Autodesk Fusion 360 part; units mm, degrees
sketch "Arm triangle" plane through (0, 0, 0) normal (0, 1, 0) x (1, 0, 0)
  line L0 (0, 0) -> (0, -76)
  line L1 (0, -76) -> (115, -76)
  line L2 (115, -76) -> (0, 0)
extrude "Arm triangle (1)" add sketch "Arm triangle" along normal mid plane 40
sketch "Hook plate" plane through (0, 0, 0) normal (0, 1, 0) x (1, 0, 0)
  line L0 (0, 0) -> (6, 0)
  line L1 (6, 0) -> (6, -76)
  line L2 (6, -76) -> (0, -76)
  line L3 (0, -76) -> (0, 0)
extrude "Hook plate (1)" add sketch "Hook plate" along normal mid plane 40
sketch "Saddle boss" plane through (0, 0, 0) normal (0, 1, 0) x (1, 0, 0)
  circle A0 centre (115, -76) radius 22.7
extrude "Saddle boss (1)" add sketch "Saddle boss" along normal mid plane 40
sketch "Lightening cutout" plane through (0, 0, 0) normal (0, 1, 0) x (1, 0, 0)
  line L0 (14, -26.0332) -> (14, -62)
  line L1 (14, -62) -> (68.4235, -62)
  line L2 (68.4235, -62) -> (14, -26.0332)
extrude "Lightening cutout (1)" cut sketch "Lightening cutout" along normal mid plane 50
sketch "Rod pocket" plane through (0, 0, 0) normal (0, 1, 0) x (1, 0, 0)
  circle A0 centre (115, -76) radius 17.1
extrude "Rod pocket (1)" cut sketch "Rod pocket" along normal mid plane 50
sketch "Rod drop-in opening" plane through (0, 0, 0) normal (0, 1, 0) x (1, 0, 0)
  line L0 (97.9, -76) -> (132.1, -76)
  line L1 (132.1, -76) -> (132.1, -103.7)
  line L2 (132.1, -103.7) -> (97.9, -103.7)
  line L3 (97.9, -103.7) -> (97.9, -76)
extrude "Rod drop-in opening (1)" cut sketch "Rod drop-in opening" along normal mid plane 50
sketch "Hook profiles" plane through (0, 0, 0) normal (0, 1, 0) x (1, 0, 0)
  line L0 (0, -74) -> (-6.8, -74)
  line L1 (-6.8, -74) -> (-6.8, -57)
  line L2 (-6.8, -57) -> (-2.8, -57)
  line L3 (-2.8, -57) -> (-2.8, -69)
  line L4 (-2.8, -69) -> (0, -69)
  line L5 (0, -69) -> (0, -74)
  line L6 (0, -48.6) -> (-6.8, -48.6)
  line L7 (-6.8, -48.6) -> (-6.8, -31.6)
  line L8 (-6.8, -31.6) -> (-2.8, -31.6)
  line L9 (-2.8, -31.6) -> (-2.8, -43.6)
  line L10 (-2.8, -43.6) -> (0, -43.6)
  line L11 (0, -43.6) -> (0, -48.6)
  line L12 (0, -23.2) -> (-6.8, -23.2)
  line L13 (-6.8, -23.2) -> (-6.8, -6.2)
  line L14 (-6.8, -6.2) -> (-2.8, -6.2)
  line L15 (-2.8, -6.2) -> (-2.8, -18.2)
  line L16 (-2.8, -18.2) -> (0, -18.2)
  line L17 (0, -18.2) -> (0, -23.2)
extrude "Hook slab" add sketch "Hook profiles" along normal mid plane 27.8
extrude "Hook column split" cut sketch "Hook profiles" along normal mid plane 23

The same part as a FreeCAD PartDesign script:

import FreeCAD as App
import Part
import Sketcher

V = App.Vector
Q = App.Units.Quantity

doc = App.newDocument("Part")
params = doc.addObject("Spreadsheet::Sheet", "Params")
for row, (alias, value) in enumerate([
    ("sketch1_width", "115 mm"),
    ("sketch1_height", "76 mm"),
    ("pad1_length", "40 mm"),
    ("sketch2_width", "6 mm"),
    ("sketch2_height", "76 mm"),
    ("pad2_length", "40 mm"),
    ("sketch3_diameter", "45.4 mm"),
    ("pad3_length", "40 mm"),
    ("pocket1_length", "50 mm"),
    ("sketch5_diameter", "34.2 mm"),
    ("pocket2_length", "50 mm"),
    ("sketch6_width", "34.2 mm"),
    ("sketch6_height", "27.7 mm"),
    ("pocket3_length", "50 mm"),
    ("sketch7_width", "4 mm"),
    ("sketch7_height", "5 mm"),
    ("sketch7_height2", "12 mm"),
    ("sketch7_width2", "6.8 mm"),
    ("pad4_length", "27.8 mm"),
    ("sketch8_width", "4 mm"),
    ("sketch8_height", "5 mm"),
    ("sketch8_height2", "12 mm"),
    ("sketch8_width2", "6.8 mm"),
    ("pocket4_length", "23 mm"),
], start=1):
    params.set(f"A{row}", alias)
    params.set(f"B{row}", "=" + value)
    params.setAlias(f"B{row}", alias)

body = doc.addObject("PartDesign::Body", "Body")

sketch1 = body.newObject("Sketcher::SketchObject", "Sketch")
sketch1.AttachmentSupport = (doc.getObject("XZ_Plane"), [""])
sketch1.MapMode = "FlatFace"
sketch1.addGeometry(Part.LineSegment(V(115, 76, 0), V(0, 0, 0)), False)
sketch1.addGeometry(Part.LineSegment(V(0, 0, 0), V(0, 76, 0)), False)
sketch1.addGeometry(Part.LineSegment(V(0, 76, 0), V(115, 76, 0)), False)
sketch1.addConstraint(Sketcher.Constraint("Coincident", 0, 2, 1, 1))
sketch1.addConstraint(Sketcher.Constraint("Coincident", 1, 2, 2, 1))
sketch1.addConstraint(Sketcher.Constraint("Coincident", 2, 2, 0, 1))
sketch1.addConstraint(Sketcher.Constraint("Vertical", 1))
sketch1.addConstraint(Sketcher.Constraint("Horizontal", 2))
sketch1.addConstraint(Sketcher.Constraint("Coincident", 0, 2, -1, 1))
sketch1.addConstraint(Sketcher.Constraint("DistanceX", 2, 1, 2, 2, 115.0))
sketch1.addConstraint(Sketcher.Constraint("DistanceY", 1, 1, 1, 2, 76.0))
sketch1.setExpression("Constraints[6]", "Params.sketch1_width")
sketch1.setExpression("Constraints[7]", "Params.sketch1_height")
pad1 = body.newObject("PartDesign::Pad", "Pad")
pad1.Profile = sketch1
pad1.setExpression("Length", "Params.pad1_length")
pad1.Midplane = True

sketch2 = body.newObject("Sketcher::SketchObject", "Sketch001")
sketch2.AttachmentSupport = (doc.getObject("XZ_Plane"), [""])
sketch2.MapMode = "FlatFace"
sketch2.addGeometry(Part.LineSegment(V(6, 0, 0), V(0, 0, 0)), False)
sketch2.addGeometry(Part.LineSegment(V(0, 0, 0), V(0, 76, 0)), False)
sketch2.addGeometry(Part.LineSegment(V(0, 76, 0), V(6, 76, 0)), False)
sketch2.addGeometry(Part.LineSegment(V(6, 76, 0), V(6, 0, 0)), False)
sketch2.addConstraint(Sketcher.Constraint("Coincident", 0, 2, 1, 1))
sketch2.addConstraint(Sketcher.Constraint("Coincident", 1, 2, 2, 1))
sketch2.addConstraint(Sketcher.Constraint("Coincident", 2, 2, 3, 1))
sketch2.addConstraint(Sketcher.Constraint("Coincident", 3, 2, 0, 1))
sketch2.addConstraint(Sketcher.Constraint("Horizontal", 0))
sketch2.addConstraint(Sketcher.Constraint("Vertical", 1))
sketch2.addConstraint(Sketcher.Constraint("Horizontal", 2))
sketch2.addConstraint(Sketcher.Constraint("Vertical", 3))
sketch2.addConstraint(Sketcher.Constraint("Coincident", 0, 2, -1, 1))
sketch2.addConstraint(Sketcher.Constraint("DistanceX", 0, 2, 0, 1, 6.0))
sketch2.addConstraint(Sketcher.Constraint("DistanceY", 1, 1, 1, 2, 76.0))
sketch2.setExpression("Constraints[9]", "Params.sketch2_width")
sketch2.setExpression("Constraints[10]", "Params.sketch2_height")
pad2 = body.newObject("PartDesign::Pad", "Pad001")
pad2.Profile = sketch2
pad2.setExpression("Length", "Params.pad2_length")
pad2.Midplane = True

sketch3 = body.newObject("Sketcher::SketchObject", "Sketch002")
sketch3.AttachmentSupport = (doc.getObject("XZ_Plane"), [""])
sketch3.MapMode = "FlatFace"
sketch3.addGeometry(Part.Circle(V(115, 76, 0), V(0, 0, 1), 23), False)
sketch3.addConstraint(Sketcher.Constraint("Diameter", 0, 45.4))
sketch3.addConstraint(Sketcher.Constraint("DistanceX", -1, 1, 0, 3, 115.0))
sketch3.addConstraint(Sketcher.Constraint("DistanceY", -1, 1, 0, 3, 76.0))
sketch3.setExpression("Constraints[0]", "Params.sketch3_diameter")
pad3 = body.newObject("PartDesign::Pad", "Pad002")
pad3.Profile = sketch3
pad3.setExpression("Length", "Params.pad3_length")
pad3.Midplane = True

sketch4 = body.newObject("Sketcher::SketchObject", "Sketch003")
sketch4.AttachmentSupport = (doc.getObject("XZ_Plane"), [""])
sketch4.MapMode = "FlatFace"
sketch4.addGeometry(Part.LineSegment(V(68, 62, 0), V(14, 26, 0)), False)
sketch4.addGeometry(Part.LineSegment(V(14, 26, 0), V(14, 62, 0)), False)
sketch4.addGeometry(Part.LineSegment(V(14, 62, 0), V(68, 62, 0)), False)
sketch4.addConstraint(Sketcher.Constraint("Coincident", 0, 2, 1, 1))
sketch4.addConstraint(Sketcher.Constraint("Coincident", 1, 2, 2, 1))
sketch4.addConstraint(Sketcher.Constraint("Coincident", 2, 2, 0, 1))
sketch4.addConstraint(Sketcher.Constraint("Vertical", 1))
sketch4.addConstraint(Sketcher.Constraint("Horizontal", 2))
sketch4.addConstraint(Sketcher.Constraint("DistanceX", -1, 1, 0, 2, 14.0))
sketch4.addConstraint(Sketcher.Constraint("DistanceY", -1, 1, 1, 2, 62.0))
sketch4.addConstraint(Sketcher.Constraint("Angle", 0, Q("-146.5405 deg")))
sketch4.addConstraint(Sketcher.Constraint("DistanceX", 2, 1, 2, 2, 54.4235))
pocket1 = body.newObject("PartDesign::Pocket", "Pocket")
pocket1.Profile = sketch4
pocket1.setExpression("Length", "Params.pocket1_length")
pocket1.Midplane = True

sketch5 = body.newObject("Sketcher::SketchObject", "Sketch004")
sketch5.AttachmentSupport = (doc.getObject("XZ_Plane"), [""])
sketch5.MapMode = "FlatFace"
sketch5.addGeometry(Part.Circle(V(115, 76, 0), V(0, 0, 1), 17), False)
sketch5.addConstraint(Sketcher.Constraint("Diameter", 0, 34.2))
sketch5.addConstraint(Sketcher.Constraint("DistanceX", -1, 1, 0, 3, 115.0))
sketch5.addConstraint(Sketcher.Constraint("DistanceY", -1, 1, 0, 3, 76.0))
sketch5.setExpression("Constraints[0]", "Params.sketch5_diameter")
pocket2 = body.newObject("PartDesign::Pocket", "Pocket001")
pocket2.Profile = sketch5
pocket2.setExpression("Length", "Params.pocket2_length")
pocket2.Midplane = True

sketch6 = body.newObject("Sketcher::SketchObject", "Sketch005")
sketch6.AttachmentSupport = (doc.getObject("XZ_Plane"), [""])
sketch6.MapMode = "FlatFace"
sketch6.addGeometry(Part.LineSegment(V(132, 76, 0), V(98, 76, 0)), False)
sketch6.addGeometry(Part.LineSegment(V(98, 76, 0), V(98, 104, 0)), False)
sketch6.addGeometry(Part.LineSegment(V(98, 104, 0), V(132, 104, 0)), False)
sketch6.addGeometry(Part.LineSegment(V(132, 104, 0), V(132, 76, 0)), False)
sketch6.addConstraint(Sketcher.Constraint("Coincident", 0, 2, 1, 1))
sketch6.addConstraint(Sketcher.Constraint("Coincident", 1, 2, 2, 1))
sketch6.addConstraint(Sketcher.Constraint("Coincident", 2, 2, 3, 1))
sketch6.addConstraint(Sketcher.Constraint("Coincident", 3, 2, 0, 1))
sketch6.addConstraint(Sketcher.Constraint("Horizontal", 0))
sketch6.addConstraint(Sketcher.Constraint("Vertical", 1))
sketch6.addConstraint(Sketcher.Constraint("Horizontal", 2))
sketch6.addConstraint(Sketcher.Constraint("Vertical", 3))
sketch6.addConstraint(Sketcher.Constraint("DistanceX", 0, 2, 0, 1, 34.2))
sketch6.addConstraint(Sketcher.Constraint("DistanceY", 1, 1, 1, 2, 27.7))
sketch6.addConstraint(Sketcher.Constraint("DistanceY", -1, 1, 0, 2, 76.0))
sketch6.addConstraint(Sketcher.Constraint("DistanceX", -1, 1, 0, 2, 97.9))
sketch6.setExpression("Constraints[8]", "Params.sketch6_width")
sketch6.setExpression("Constraints[9]", "Params.sketch6_height")
pocket3 = body.newObject("PartDesign::Pocket", "Pocket002")
pocket3.Profile = sketch6
pocket3.setExpression("Length", "Params.pocket3_length")
pocket3.Midplane = True

sketch7 = body.newObject("Sketcher::SketchObject", "Sketch006")
sketch7.AttachmentSupport = (doc.getObject("XZ_Plane"), [""])
sketch7.MapMode = "FlatFace"
sketch7.addGeometry(Part.LineSegment(V(-6.8, 74, 0), V(0, 74, 0)), False)
sketch7.addGeometry(Part.LineSegment(V(0, 74, 0), V(0, 69, 0)), False)
sketch7.addGeometry(Part.LineSegment(V(0, 69, 0), V(-2.8, 69, 0)), False)
sketch7.addGeometry(Part.LineSegment(V(-2.8, 69, 0), V(-2.8, 57, 0)), False)
sketch7.addGeometry(Part.LineSegment(V(-2.8, 57, 0), V(-6.8, 57, 0)), False)
sketch7.addGeometry(Part.LineSegment(V(-6.8, 57, 0), V(-6.8, 74, 0)), False)
sketch7.addGeometry(Part.LineSegment(V(-6.8, 48.6, 0), V(0, 48.6, 0)), False)
sketch7.addGeometry(Part.LineSegment(V(0, 48.6, 0), V(0, 43.6, 0)), False)
sketch7.addGeometry(Part.LineSegment(V(0, 43.6, 0), V(-2.8, 43.6, 0)), False)
sketch7.addGeometry(Part.LineSegment(V(-2.8, 43.6, 0), V(-2.8, 31.6, 0)), False)
sketch7.addGeometry(Part.LineSegment(V(-2.8, 31.6, 0), V(-6.8, 31.6, 0)), False)
sketch7.addGeometry(Part.LineSegment(V(-6.8, 31.6, 0), V(-6.8, 48.6, 0)), False)
sketch7.addGeometry(Part.LineSegment(V(-6.8, 23.2, 0), V(0, 23.2, 0)), False)
sketch7.addGeometry(Part.LineSegment(V(0, 23.2, 0), V(0, 18.2, 0)), False)
sketch7.addGeometry(Part.LineSegment(V(0, 18.2, 0), V(-2.8, 18.2, 0)), False)
sketch7.addGeometry(Part.LineSegment(V(-2.8, 18.2, 0), V(-2.8, 6.2, 0)), False)
sketch7.addGeometry(Part.LineSegment(V(-2.8, 6.2, 0), V(-6.8, 6.2, 0)), False)
sketch7.addGeometry(Part.LineSegment(V(-6.8, 6.2, 0), V(-6.8, 23.2, 0)), False)
sketch7.addConstraint(Sketcher.Constraint("Coincident", 0, 2, 1, 1))
sketch7.addConstraint(Sketcher.Constraint("Coincident", 1, 2, 2, 1))
sketch7.addConstraint(Sketcher.Constraint("Coincident", 2, 2, 3, 1))
sketch7.addConstraint(Sketcher.Constraint("Coincident", 3, 2, 4, 1))
sketch7.addConstraint(Sketcher.Constraint("Coincident", 4, 2, 5, 1))
sketch7.addConstraint(Sketcher.Constraint("Coincident", 5, 2, 0, 1))
sketch7.addConstraint(Sketcher.Constraint("Coincident", 6, 2, 7, 1))
sketch7.addConstraint(Sketcher.Constraint("Coincident", 7, 2, 8, 1))
sketch7.addConstraint(Sketcher.Constraint("Coincident", 8, 2, 9, 1))
sketch7.addConstraint(Sketcher.Constraint("Coincident", 9, 2, 10, 1))
sketch7.addConstraint(Sketcher.Constraint("Coincident", 10, 2, 11, 1))
sketch7.addConstraint(Sketcher.Constraint("Coincident", 11, 2, 6, 1))
sketch7.addConstraint(Sketcher.Constraint("Coincident", 12, 2, 13, 1))
sketch7.addConstraint(Sketcher.Constraint("Coincident", 13, 2, 14, 1))
sketch7.addConstraint(Sketcher.Constraint("Coincident", 14, 2, 15, 1))
sketch7.addConstraint(Sketcher.Constraint("Coincident", 15, 2, 16, 1))
sketch7.addConstraint(Sketcher.Constraint("Coincident", 16, 2, 17, 1))
sketch7.addConstraint(Sketcher.Constraint("Coincident", 17, 2, 12, 1))
sketch7.addConstraint(Sketcher.Constraint("Horizontal", 0))
sketch7.addConstraint(Sketcher.Constraint("Vertical", 1))
sketch7.addConstraint(Sketcher.Constraint("Horizontal", 2))
sketch7.addConstraint(Sketcher.Constraint("Vertical", 3))
sketch7.addConstraint(Sketcher.Constraint("Horizontal", 4))
sketch7.addConstraint(Sketcher.Constraint("Vertical", 5))
sketch7.addConstraint(Sketcher.Constraint("Horizontal", 6))
sketch7.addConstraint(Sketcher.Constraint("Vertical", 7))
sketch7.addConstraint(Sketcher.Constraint("Horizontal", 8))
sketch7.addConstraint(Sketcher.Constraint("Vertical", 9))
sketch7.addConstraint(Sketcher.Constraint("Horizontal", 10))
sketch7.addConstraint(Sketcher.Constraint("Vertical", 11))
sketch7.addConstraint(Sketcher.Constraint("Horizontal", 12))
sketch7.addConstraint(Sketcher.Constraint("Vertical", 13))
sketch7.addConstraint(Sketcher.Constraint("Horizontal", 14))
sketch7.addConstraint(Sketcher.Constraint("Vertical", 15))
sketch7.addConstraint(Sketcher.Constraint("Horizontal", 16))
sketch7.addConstraint(Sketcher.Constraint("Vertical", 17))
sketch7.addConstraint(Sketcher.Constraint("PointOnObject", 0, 2, -2))
sketch7.addConstraint(Sketcher.Constraint("PointOnObject", 6, 2, -2))
sketch7.addConstraint(Sketcher.Constraint("PointOnObject", 12, 2, -2))
sketch7.addConstraint(Sketcher.Constraint("Vertical", 3, 2, 8, 2))
sketch7.addConstraint(Sketcher.Constraint("Vertical", 5, 2, 10, 2))
sketch7.addConstraint(Sketcher.Constraint("Vertical", 9, 2, 14, 2))
sketch7.addConstraint(Sketcher.Constraint("Vertical", 11, 2, 16, 2))
sketch7.addConstraint(Sketcher.Constraint("Equal", 1, 7))
sketch7.addConstraint(Sketcher.Constraint("Equal", 3, 9))
sketch7.addConstraint(Sketcher.Constraint("Equal", 7, 13))
sketch7.addConstraint(Sketcher.Constraint("Equal", 9, 15))
sketch7.addConstraint(Sketcher.Constraint("DistanceX", 4, 2, 4, 1, 4.0))
sketch7.addConstraint(Sketcher.Constraint("DistanceY", 1, 2, 1, 1, 5.0))
sketch7.addConstraint(Sketcher.Constraint("DistanceY", 3, 2, 3, 1, 12.0))
sketch7.addConstraint(Sketcher.Constraint("DistanceX", 0, 1, 0, 2, 6.8))
sketch7.addConstraint(Sketcher.Constraint("DistanceY", -1, 1, 0, 2, 74.0))
sketch7.addConstraint(Sketcher.Constraint("DistanceY", -1, 1, 6, 2, 48.6))
sketch7.addConstraint(Sketcher.Constraint("DistanceY", -1, 1, 12, 2, 23.2))
sketch7.setExpression("Constraints[47]", "Params.sketch7_width")
sketch7.setExpression("Constraints[48]", "Params.sketch7_height")
sketch7.setExpression("Constraints[49]", "Params.sketch7_height2")
sketch7.setExpression("Constraints[50]", "Params.sketch7_width2")
pad4 = body.newObject("PartDesign::Pad", "Pad003")
pad4.Profile = sketch7
pad4.setExpression("Length", "Params.pad4_length")
pad4.Midplane = True

sketch8 = body.newObject("Sketcher::SketchObject", "Sketch007")
sketch8.AttachmentSupport = (doc.getObject("XZ_Plane"), [""])
sketch8.MapMode = "FlatFace"
sketch8.addGeometry(Part.LineSegment(V(-6.8, 74, 0), V(0, 74, 0)), False)
sketch8.addGeometry(Part.LineSegment(V(0, 74, 0), V(0, 69, 0)), False)
sketch8.addGeometry(Part.LineSegment(V(0, 69, 0), V(-2.8, 69, 0)), False)
sketch8.addGeometry(Part.LineSegment(V(-2.8, 69, 0), V(-2.8, 57, 0)), False)
sketch8.addGeometry(Part.LineSegment(V(-2.8, 57, 0), V(-6.8, 57, 0)), False)
sketch8.addGeometry(Part.LineSegment(V(-6.8, 57, 0), V(-6.8, 74, 0)), False)
sketch8.addGeometry(Part.LineSegment(V(-6.8, 48.6, 0), V(0, 48.6, 0)), False)
sketch8.addGeometry(Part.LineSegment(V(0, 48.6, 0), V(0, 43.6, 0)), False)
sketch8.addGeometry(Part.LineSegment(V(0, 43.6, 0), V(-2.8, 43.6, 0)), False)
sketch8.addGeometry(Part.LineSegment(V(-2.8, 43.6, 0), V(-2.8, 31.6, 0)), False)
sketch8.addGeometry(Part.LineSegment(V(-2.8, 31.6, 0), V(-6.8, 31.6, 0)), False)
sketch8.addGeometry(Part.LineSegment(V(-6.8, 31.6, 0), V(-6.8, 48.6, 0)), False)
sketch8.addGeometry(Part.LineSegment(V(-6.8, 23.2, 0), V(0, 23.2, 0)), False)
sketch8.addGeometry(Part.LineSegment(V(0, 23.2, 0), V(0, 18.2, 0)), False)
sketch8.addGeometry(Part.LineSegment(V(0, 18.2, 0), V(-2.8, 18.2, 0)), False)
sketch8.addGeometry(Part.LineSegment(V(-2.8, 18.2, 0), V(-2.8, 6.2, 0)), False)
sketch8.addGeometry(Part.LineSegment(V(-2.8, 6.2, 0), V(-6.8, 6.2, 0)), False)
sketch8.addGeometry(Part.LineSegment(V(-6.8, 6.2, 0), V(-6.8, 23.2, 0)), False)
sketch8.addConstraint(Sketcher.Constraint("Coincident", 0, 2, 1, 1))
sketch8.addConstraint(Sketcher.Constraint("Coincident", 1, 2, 2, 1))
sketch8.addConstraint(Sketcher.Constraint("Coincident", 2, 2, 3, 1))
sketch8.addConstraint(Sketcher.Constraint("Coincident", 3, 2, 4, 1))
sketch8.addConstraint(Sketcher.Constraint("Coincident", 4, 2, 5, 1))
sketch8.addConstraint(Sketcher.Constraint("Coincident", 5, 2, 0, 1))
sketch8.addConstraint(Sketcher.Constraint("Coincident", 6, 2, 7, 1))
sketch8.addConstraint(Sketcher.Constraint("Coincident", 7, 2, 8, 1))
sketch8.addConstraint(Sketcher.Constraint("Coincident", 8, 2, 9, 1))
sketch8.addConstraint(Sketcher.Constraint("Coincident", 9, 2, 10, 1))
sketch8.addConstraint(Sketcher.Constraint("Coincident", 10, 2, 11, 1))
sketch8.addConstraint(Sketcher.Constraint("Coincident", 11, 2, 6, 1))
sketch8.addConstraint(Sketcher.Constraint("Coincident", 12, 2, 13, 1))
sketch8.addConstraint(Sketcher.Constraint("Coincident", 13, 2, 14, 1))
sketch8.addConstraint(Sketcher.Constraint("Coincident", 14, 2, 15, 1))
sketch8.addConstraint(Sketcher.Constraint("Coincident", 15, 2, 16, 1))
sketch8.addConstraint(Sketcher.Constraint("Coincident", 16, 2, 17, 1))
sketch8.addConstraint(Sketcher.Constraint("Coincident", 17, 2, 12, 1))
sketch8.addConstraint(Sketcher.Constraint("Horizontal", 0))
sketch8.addConstraint(Sketcher.Constraint("Vertical", 1))
sketch8.addConstraint(Sketcher.Constraint("Horizontal", 2))
sketch8.addConstraint(Sketcher.Constraint("Vertical", 3))
sketch8.addConstraint(Sketcher.Constraint("Horizontal", 4))
sketch8.addConstraint(Sketcher.Constraint("Vertical", 5))
sketch8.addConstraint(Sketcher.Constraint("Horizontal", 6))
sketch8.addConstraint(Sketcher.Constraint("Vertical", 7))
sketch8.addConstraint(Sketcher.Constraint("Horizontal", 8))
sketch8.addConstraint(Sketcher.Constraint("Vertical", 9))
sketch8.addConstraint(Sketcher.Constraint("Horizontal", 10))
sketch8.addConstraint(Sketcher.Constraint("Vertical", 11))
sketch8.addConstraint(Sketcher.Constraint("Horizontal", 12))
sketch8.addConstraint(Sketcher.Constraint("Vertical", 13))
sketch8.addConstraint(Sketcher.Constraint("Horizontal", 14))
sketch8.addConstraint(Sketcher.Constraint("Vertical", 15))
sketch8.addConstraint(Sketcher.Constraint("Horizontal", 16))
sketch8.addConstraint(Sketcher.Constraint("Vertical", 17))
sketch8.addConstraint(Sketcher.Constraint("PointOnObject", 0, 2, -2))
sketch8.addConstraint(Sketcher.Constraint("PointOnObject", 6, 2, -2))
sketch8.addConstraint(Sketcher.Constraint("PointOnObject", 12, 2, -2))
sketch8.addConstraint(Sketcher.Constraint("Vertical", 3, 2, 8, 2))
sketch8.addConstraint(Sketcher.Constraint("Vertical", 5, 2, 10, 2))
sketch8.addConstraint(Sketcher.Constraint("Vertical", 9, 2, 14, 2))
sketch8.addConstraint(Sketcher.Constraint("Vertical", 11, 2, 16, 2))
sketch8.addConstraint(Sketcher.Constraint("Equal", 1, 7))
sketch8.addConstraint(Sketcher.Constraint("Equal", 3, 9))
sketch8.addConstraint(Sketcher.Constraint("Equal", 7, 13))
sketch8.addConstraint(Sketcher.Constraint("Equal", 9, 15))
sketch8.addConstraint(Sketcher.Constraint("DistanceX", 4, 2, 4, 1, 4.0))
sketch8.addConstraint(Sketcher.Constraint("DistanceY", 1, 2, 1, 1, 5.0))
sketch8.addConstraint(Sketcher.Constraint("DistanceY", 3, 2, 3, 1, 12.0))
sketch8.addConstraint(Sketcher.Constraint("DistanceX", 0, 1, 0, 2, 6.8))
sketch8.addConstraint(Sketcher.Constraint("DistanceY", -1, 1, 0, 2, 74.0))
sketch8.addConstraint(Sketcher.Constraint("DistanceY", -1, 1, 6, 2, 48.6))
sketch8.addConstraint(Sketcher.Constraint("DistanceY", -1, 1, 12, 2, 23.2))
sketch8.setExpression("Constraints[47]", "Params.sketch8_width")
sketch8.setExpression("Constraints[48]", "Params.sketch8_height")
sketch8.setExpression("Constraints[49]", "Params.sketch8_height2")
sketch8.setExpression("Constraints[50]", "Params.sketch8_width2")
pocket4 = body.newObject("PartDesign::Pocket", "Pocket003")
pocket4.Profile = sketch8
pocket4.setExpression("Length", "Params.pocket4_length")
pocket4.Midplane = True

doc.recompute()
